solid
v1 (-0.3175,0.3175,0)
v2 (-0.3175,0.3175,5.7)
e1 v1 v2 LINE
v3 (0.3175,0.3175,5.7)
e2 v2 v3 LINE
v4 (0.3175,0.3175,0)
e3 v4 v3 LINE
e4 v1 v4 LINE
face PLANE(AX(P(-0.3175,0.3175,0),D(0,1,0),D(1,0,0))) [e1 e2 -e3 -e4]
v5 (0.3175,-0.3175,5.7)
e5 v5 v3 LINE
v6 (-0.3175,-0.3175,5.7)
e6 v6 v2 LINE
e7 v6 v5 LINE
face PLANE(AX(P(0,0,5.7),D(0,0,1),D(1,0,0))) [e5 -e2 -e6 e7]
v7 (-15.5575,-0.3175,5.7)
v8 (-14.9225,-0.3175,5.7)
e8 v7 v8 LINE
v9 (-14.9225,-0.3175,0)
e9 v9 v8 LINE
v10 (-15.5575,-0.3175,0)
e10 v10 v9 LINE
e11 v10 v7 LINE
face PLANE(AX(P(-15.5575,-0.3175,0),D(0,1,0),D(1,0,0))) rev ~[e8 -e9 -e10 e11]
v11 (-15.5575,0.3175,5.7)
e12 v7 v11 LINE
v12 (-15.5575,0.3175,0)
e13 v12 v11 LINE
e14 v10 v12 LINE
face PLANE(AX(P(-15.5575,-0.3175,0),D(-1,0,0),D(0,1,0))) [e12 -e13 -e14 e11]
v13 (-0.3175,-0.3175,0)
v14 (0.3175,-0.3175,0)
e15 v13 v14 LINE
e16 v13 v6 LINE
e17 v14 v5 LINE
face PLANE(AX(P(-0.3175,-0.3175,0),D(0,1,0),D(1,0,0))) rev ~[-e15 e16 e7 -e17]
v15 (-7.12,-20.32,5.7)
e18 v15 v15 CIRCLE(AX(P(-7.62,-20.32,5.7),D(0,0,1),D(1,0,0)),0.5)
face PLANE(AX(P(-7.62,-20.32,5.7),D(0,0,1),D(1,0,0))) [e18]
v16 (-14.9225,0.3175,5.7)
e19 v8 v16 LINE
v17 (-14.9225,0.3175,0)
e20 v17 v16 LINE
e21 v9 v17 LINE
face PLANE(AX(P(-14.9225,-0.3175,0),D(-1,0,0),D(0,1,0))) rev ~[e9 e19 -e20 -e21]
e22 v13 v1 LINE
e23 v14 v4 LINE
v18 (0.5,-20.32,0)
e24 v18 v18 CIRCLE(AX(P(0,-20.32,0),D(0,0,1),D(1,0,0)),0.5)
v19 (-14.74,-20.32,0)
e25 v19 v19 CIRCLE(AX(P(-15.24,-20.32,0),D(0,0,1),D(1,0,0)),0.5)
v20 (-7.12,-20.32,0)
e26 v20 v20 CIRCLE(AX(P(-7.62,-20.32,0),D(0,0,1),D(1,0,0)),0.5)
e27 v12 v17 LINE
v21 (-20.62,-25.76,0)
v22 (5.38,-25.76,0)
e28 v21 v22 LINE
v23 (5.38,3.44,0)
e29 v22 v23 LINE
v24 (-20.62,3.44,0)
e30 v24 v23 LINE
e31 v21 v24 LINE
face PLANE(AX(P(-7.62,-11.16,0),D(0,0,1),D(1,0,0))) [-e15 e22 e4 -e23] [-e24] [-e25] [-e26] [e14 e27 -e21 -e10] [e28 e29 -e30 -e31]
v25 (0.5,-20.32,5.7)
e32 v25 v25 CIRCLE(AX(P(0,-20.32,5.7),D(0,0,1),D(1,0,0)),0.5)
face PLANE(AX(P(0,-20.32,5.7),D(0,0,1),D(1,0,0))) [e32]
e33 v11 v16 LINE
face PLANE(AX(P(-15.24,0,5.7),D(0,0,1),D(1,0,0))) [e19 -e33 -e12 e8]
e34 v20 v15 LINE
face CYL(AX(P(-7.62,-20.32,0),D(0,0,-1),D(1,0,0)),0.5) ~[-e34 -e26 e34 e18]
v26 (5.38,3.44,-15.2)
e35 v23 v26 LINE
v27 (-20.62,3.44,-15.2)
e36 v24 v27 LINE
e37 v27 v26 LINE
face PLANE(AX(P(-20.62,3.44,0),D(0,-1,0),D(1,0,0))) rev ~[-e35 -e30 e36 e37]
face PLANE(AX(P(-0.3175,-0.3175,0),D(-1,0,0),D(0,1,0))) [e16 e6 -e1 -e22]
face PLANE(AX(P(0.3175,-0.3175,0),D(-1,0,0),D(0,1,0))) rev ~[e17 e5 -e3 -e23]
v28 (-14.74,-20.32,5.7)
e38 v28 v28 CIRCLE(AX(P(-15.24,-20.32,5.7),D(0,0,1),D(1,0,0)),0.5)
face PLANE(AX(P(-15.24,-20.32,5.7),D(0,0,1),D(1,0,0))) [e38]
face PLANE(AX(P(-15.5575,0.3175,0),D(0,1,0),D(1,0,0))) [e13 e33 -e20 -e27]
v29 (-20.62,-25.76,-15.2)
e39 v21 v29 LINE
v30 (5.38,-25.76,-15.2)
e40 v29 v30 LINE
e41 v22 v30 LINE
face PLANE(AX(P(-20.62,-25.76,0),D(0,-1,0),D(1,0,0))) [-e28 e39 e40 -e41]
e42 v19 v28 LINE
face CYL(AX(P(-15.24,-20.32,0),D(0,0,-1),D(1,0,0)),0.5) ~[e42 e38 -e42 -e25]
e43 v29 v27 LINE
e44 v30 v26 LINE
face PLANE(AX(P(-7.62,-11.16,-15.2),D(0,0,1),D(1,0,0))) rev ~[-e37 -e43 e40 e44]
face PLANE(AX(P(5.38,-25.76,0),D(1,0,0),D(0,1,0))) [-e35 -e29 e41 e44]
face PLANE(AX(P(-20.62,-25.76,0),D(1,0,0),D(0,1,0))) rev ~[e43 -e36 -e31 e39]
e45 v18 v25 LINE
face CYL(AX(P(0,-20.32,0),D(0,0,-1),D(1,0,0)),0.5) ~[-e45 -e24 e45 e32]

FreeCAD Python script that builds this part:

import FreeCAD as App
import Part
import Sketcher
from FreeCAD import Vector
Q = App.Units.Quantity

doc = App.newDocument("Part")
body = doc.addObject("PartDesign::Body", "Body")

# Sketch on XY plane
sketch1 = doc.addObject("Sketcher::SketchObject", "Sketch")
body.addObject(sketch1)
sketch1.AttachmentSupport = (doc.XY_Plane, [""])
sketch1.MapMode = "FlatFace"
sketch1.addGeometry([
    Part.LineSegment(Vector(-21, 3, 0), Vector(-21, -26, 0)),
    Part.LineSegment(Vector(-21, -26, 0), Vector(5, -26, 0)),
    Part.LineSegment(Vector(5, -26, 0), Vector(5, 3, 0)),
    Part.LineSegment(Vector(5, 3, 0), Vector(-21, 3, 0)),
], False)
sketch1.addConstraint([
    Sketcher.Constraint("Coincident", 0, 2, 1, 1),
    Sketcher.Constraint("Coincident", 1, 2, 2, 1),
    Sketcher.Constraint("Coincident", 2, 2, 3, 1),
    Sketcher.Constraint("Coincident", 3, 2, 0, 1),
    Sketcher.Constraint("Vertical", 0),
    Sketcher.Constraint("Horizontal", 1),
    Sketcher.Constraint("Vertical", 2),
    Sketcher.Constraint("Horizontal", 3),
    Sketcher.Constraint("DistanceX", 1, 1, 1, 2, Q("26 mm")),
    Sketcher.Constraint("DistanceY", 0, 2, 0, 1, Q("29.2 mm")),
    Sketcher.Constraint("DistanceX", 0, 2, -1, 1, Q("20.62 mm")),
    Sketcher.Constraint("DistanceY", 0, 2, -1, 1, Q("25.76 mm")),
])
pad1 = doc.addObject("PartDesign::Pad", "Pad")
body.addObject(pad1)
pad1.Profile = sketch1
pad1.Length = 15.2
pad1.Reversed = True
body2 = doc.addObject("PartDesign::Body", "Body001")
body2.AllowCompound = True

# Sketch on XY plane
sketch2 = doc.addObject("Sketcher::SketchObject", "Sketch001")
body2.addObject(sketch2)
sketch2.AttachmentSupport = (doc.getObject("XY_Plane001"), [""])
sketch2.MapMode = "FlatFace"
sketch2.addGeometry([
    Part.Circle(Vector(-15.2, -20.3, 0), Vector(0, 0, 1), 0.5),  # 0
    Part.Circle(Vector(-7.6, -20.3, 0), Vector(0, 0, 1), 0.5),  # 1
    Part.Circle(Vector(0, -20.3, 0), Vector(0, 0, 1), 0.5),  # 2
    Part.LineSegment(Vector(-0.3, 0.3, 0), Vector(-0.3, -0.3, 0)),  # 3
    Part.LineSegment(Vector(-0.3, -0.3, 0), Vector(0.3, -0.3, 0)),  # 4
    Part.LineSegment(Vector(0.3, -0.3, 0), Vector(0.3, 0.3, 0)),  # 5
    Part.LineSegment(Vector(0.3, 0.3, 0), Vector(-0.3, 0.3, 0)),  # 6
    Part.LineSegment(Vector(-15.6, 0.3, 0), Vector(-15.6, -0.3, 0)),  # 7
    Part.LineSegment(Vector(-15.6, -0.3, 0), Vector(-14.9, -0.3, 0)),  # 8
    Part.LineSegment(Vector(-14.9, -0.3, 0), Vector(-14.9, 0.3, 0)),  # 9
    Part.LineSegment(Vector(-14.9, 0.3, 0), Vector(-15.6, 0.3, 0)),  # 10
], False)
sketch2.addConstraint([
    Sketcher.Constraint("Coincident", 3, 2, 4, 1),
    Sketcher.Constraint("Coincident", 4, 2, 5, 1),
    Sketcher.Constraint("Coincident", 5, 2, 6, 1),
    Sketcher.Constraint("Coincident", 6, 2, 3, 1),
    Sketcher.Constraint("Coincident", 7, 2, 8, 1),
    Sketcher.Constraint("Coincident", 8, 2, 9, 1),
    Sketcher.Constraint("Coincident", 9, 2, 10, 1),
    Sketcher.Constraint("Coincident", 10, 2, 7, 1),
    Sketcher.Constraint("Vertical", 3),
    Sketcher.Constraint("Horizontal", 4),
    Sketcher.Constraint("Vertical", 5),
    Sketcher.Constraint("Horizontal", 6),
    Sketcher.Constraint("Vertical", 7),
    Sketcher.Constraint("Horizontal", 8),
    Sketcher.Constraint("Vertical", 9),
    Sketcher.Constraint("Horizontal", 10),
    Sketcher.Constraint("Equal", 0, 1),
    Sketcher.Constraint("Equal", 1, 2),
    Sketcher.Constraint("Symmetric", 3, 2, 5, 2, -1, 1),
    Sketcher.Constraint("PointOnObject", 2, 3, -2),
    Sketcher.Constraint("Horizontal", 0, 3, 1, 3),
    Sketcher.Constraint("Horizontal", 1, 3, 2, 3),
    Sketcher.Constraint("Horizontal", 4, 2, 7, 2),
    Sketcher.Constraint("Horizontal", 6, 2, 9, 2),
    Sketcher.Constraint("Equal", 6, 8),
    Sketcher.Constraint("Equal", 10, 3),
    Sketcher.Constraint("Diameter", 0, Q("1 mm")),
    Sketcher.Constraint("DistanceX", 4, 1, 4, 2, Q("0.635 mm")),
    Sketcher.Constraint("DistanceX", 0, 3, -1, 1, Q("15.24 mm")),
    Sketcher.Constraint("DistanceY", 0, 3, -1, 1, Q("20.32 mm")),
    Sketcher.Constraint("DistanceX", 1, 3, -1, 1, Q("7.62 mm")),
    Sketcher.Constraint("DistanceX", 7, 2, 3, 2, Q("15.24 mm")),
])
pad2 = doc.addObject("PartDesign::Pad", "Pad001")
body2.addObject(pad2)
pad2.Profile = sketch2
pad2.Length = 5.7
doc.recompute()

boolean = doc.addObject("PartDesign::Boolean", "Boolean")
body2.addObject(boolean)
boolean.Type = "Fuse"
boolean.addObjects([body])

doc.recompute()
